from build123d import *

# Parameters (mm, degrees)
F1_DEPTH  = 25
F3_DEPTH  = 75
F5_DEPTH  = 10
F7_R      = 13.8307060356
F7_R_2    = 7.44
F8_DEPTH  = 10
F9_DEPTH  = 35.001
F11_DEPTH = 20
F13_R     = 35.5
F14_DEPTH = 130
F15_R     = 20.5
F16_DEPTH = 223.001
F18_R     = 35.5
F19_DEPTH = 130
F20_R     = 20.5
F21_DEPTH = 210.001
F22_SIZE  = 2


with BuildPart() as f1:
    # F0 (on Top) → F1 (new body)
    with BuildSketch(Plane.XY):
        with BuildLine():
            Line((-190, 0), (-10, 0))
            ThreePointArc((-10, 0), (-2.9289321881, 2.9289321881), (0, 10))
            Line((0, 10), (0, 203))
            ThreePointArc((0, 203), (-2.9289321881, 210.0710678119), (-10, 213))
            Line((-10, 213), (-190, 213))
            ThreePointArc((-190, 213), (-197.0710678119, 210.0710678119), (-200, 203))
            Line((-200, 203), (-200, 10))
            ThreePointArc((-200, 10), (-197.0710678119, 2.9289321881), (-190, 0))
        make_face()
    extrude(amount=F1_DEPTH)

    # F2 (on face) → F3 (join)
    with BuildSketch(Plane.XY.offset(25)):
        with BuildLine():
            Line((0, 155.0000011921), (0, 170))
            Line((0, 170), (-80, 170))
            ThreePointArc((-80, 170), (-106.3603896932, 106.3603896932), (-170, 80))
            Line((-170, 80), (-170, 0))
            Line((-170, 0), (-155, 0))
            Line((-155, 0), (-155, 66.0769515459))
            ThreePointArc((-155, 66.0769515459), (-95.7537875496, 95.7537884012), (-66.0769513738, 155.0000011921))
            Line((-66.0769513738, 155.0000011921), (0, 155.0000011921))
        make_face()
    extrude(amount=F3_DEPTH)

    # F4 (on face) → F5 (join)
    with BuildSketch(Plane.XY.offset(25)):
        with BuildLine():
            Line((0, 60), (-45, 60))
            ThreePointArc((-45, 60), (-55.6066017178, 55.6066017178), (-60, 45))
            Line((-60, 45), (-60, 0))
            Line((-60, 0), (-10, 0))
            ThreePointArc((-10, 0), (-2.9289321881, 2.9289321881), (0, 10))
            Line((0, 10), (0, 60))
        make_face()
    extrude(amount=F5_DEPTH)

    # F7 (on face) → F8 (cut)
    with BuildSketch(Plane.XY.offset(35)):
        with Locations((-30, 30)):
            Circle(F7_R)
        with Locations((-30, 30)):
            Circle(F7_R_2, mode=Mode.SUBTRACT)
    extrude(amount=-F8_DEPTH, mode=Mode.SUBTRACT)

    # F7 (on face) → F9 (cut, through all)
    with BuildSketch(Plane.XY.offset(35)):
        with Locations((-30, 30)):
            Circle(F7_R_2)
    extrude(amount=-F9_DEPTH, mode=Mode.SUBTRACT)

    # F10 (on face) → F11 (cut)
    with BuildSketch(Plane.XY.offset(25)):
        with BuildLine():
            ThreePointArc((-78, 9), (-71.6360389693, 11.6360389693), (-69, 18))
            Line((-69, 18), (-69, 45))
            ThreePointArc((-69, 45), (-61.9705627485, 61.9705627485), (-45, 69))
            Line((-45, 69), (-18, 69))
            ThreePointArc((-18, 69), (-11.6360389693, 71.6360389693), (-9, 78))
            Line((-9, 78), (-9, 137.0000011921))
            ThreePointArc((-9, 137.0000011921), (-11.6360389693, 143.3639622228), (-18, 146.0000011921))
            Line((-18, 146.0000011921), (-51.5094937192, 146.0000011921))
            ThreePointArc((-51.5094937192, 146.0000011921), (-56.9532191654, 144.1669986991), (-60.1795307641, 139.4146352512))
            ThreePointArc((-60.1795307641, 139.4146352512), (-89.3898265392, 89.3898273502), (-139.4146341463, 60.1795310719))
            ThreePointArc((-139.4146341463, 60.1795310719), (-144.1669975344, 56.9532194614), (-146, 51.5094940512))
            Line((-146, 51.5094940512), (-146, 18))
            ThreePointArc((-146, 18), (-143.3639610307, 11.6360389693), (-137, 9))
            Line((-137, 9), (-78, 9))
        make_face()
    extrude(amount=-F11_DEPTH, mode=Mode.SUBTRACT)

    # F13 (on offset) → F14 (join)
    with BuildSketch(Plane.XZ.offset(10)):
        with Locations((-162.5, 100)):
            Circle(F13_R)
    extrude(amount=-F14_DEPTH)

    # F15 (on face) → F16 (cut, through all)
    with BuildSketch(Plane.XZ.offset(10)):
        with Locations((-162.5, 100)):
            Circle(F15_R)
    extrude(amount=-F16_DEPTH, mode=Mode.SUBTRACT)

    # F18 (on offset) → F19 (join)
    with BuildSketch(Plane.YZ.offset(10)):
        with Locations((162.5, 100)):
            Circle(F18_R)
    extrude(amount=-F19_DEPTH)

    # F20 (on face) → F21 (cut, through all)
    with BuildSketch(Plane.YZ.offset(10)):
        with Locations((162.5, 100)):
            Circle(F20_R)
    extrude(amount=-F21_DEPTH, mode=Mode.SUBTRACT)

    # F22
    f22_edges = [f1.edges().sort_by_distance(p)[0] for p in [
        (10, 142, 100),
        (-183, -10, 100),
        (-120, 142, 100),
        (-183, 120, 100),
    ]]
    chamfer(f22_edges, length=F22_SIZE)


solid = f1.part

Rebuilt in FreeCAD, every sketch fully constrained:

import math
import FreeCAD as App
import Part
import Sketcher

V = App.Vector


def edges_at(feature, points):
    """Names of the edges that pass closest to the given points."""
    edges = feature.Shape.Edges
    near = lambda p: min(range(len(edges)), key=lambda i: edges[i].distToShape(Part.Vertex(*p))[0])
    return sorted({f"Edge{near(p) + 1}" for p in points})

doc = App.newDocument("Part")
body = doc.addObject("PartDesign::Body", "Body")

# Sketch on XY plane
sketch1 = body.newObject("Sketcher::SketchObject", "Sketch")
sketch1.AttachmentSupport = (doc.getObject("XY_Plane"), [""])
sketch1.MapMode = "FlatFace"
sketch1.addGeometry(Part.LineSegment(V(-190, 0, 0), V(-10, 0, 0)), False)
sketch1.addGeometry(Part.ArcOfCircle(Part.Circle(V(-10, 10, 0), V(0, 0, 1), 10), math.radians(-90), math.radians(0)), False)
sketch1.addGeometry(Part.LineSegment(V(0, 10, 0), V(0, 203, 0)), False)
sketch1.addGeometry(Part.ArcOfCircle(Part.Circle(V(-10, 203, 0), V(0, 0, 1), 10), math.radians(0), math.radians(90)), False)
sketch1.addGeometry(Part.LineSegment(V(-10, 213, 0), V(-190, 213, 0)), False)
sketch1.addGeometry(Part.ArcOfCircle(Part.Circle(V(-190, 203, 0), V(0, 0, 1), 10), math.radians(90), math.radians(180)), False)
sketch1.addGeometry(Part.LineSegment(V(-200, 203, 0), V(-200, 10, 0)), False)
sketch1.addGeometry(Part.ArcOfCircle(Part.Circle(V(-190, 10, 0), V(0, 0, 1), 10), math.radians(180), math.radians(270)), False)
sketch1.addConstraint(Sketcher.Constraint("Tangent", 0, 2, 1, 1))
sketch1.addConstraint(Sketcher.Constraint("Tangent", 1, 2, 2, 1))
sketch1.addConstraint(Sketcher.Constraint("Tangent", 2, 2, 3, 1))
sketch1.addConstraint(Sketcher.Constraint("Tangent", 3, 2, 4, 1))
sketch1.addConstraint(Sketcher.Constraint("Tangent", 4, 2, 5, 1))
sketch1.addConstraint(Sketcher.Constraint("Tangent", 5, 2, 6, 1))
sketch1.addConstraint(Sketcher.Constraint("Tangent", 6, 2, 7, 1))
sketch1.addConstraint(Sketcher.Constraint("Tangent", 7, 2, 0, 1))
sketch1.addConstraint(Sketcher.Constraint("Horizontal", 0))
sketch1.addConstraint(Sketcher.Constraint("Vertical", 2))
sketch1.addConstraint(Sketcher.Constraint("Horizontal", 4))
sketch1.addConstraint(Sketcher.Constraint("Vertical", 6))
sketch1.addConstraint(Sketcher.Constraint("Equal", 1, 3))
sketch1.addConstraint(Sketcher.Constraint("Equal", 3, 5))
sketch1.addConstraint(Sketcher.Constraint("Equal", 5, 7))
sketch1.addConstraint(Sketcher.Constraint("PointOnObject", 0, 2, -1))
sketch1.addConstraint(Sketcher.Constraint("PointOnObject", 1, 2, -2))
sketch1.addConstraint(Sketcher.Constraint("Radius", 1, 10.0))
sketch1.addConstraint(Sketcher.Constraint("DistanceX", 0, 1, 0, 2, 180.0))
sketch1.addConstraint(Sketcher.Constraint("DistanceY", 2, 1, 2, 2, 193.0))
pad1 = body.newObject("PartDesign::Pad", "Pad")
pad1.Profile = sketch1
pad1.Length = 25

# Sketch on XY plane
sketch2 = body.newObject("Sketcher::SketchObject", "Sketch001")
sketch2.AttachmentSupport = (doc.getObject("XY_Plane"), [""])
sketch2.MapMode = "FlatFace"
sketch2.AttachmentOffset = App.Placement(V(0, 0, 25), App.Rotation())
sketch2.addGeometry(Part.LineSegment(V(0, 155, 0), V(0, 170, 0)), False)
sketch2.addGeometry(Part.LineSegment(V(0, 170, 0), V(-80, 170, 0)), False)
sketch2.addGeometry(Part.ArcOfCircle(Part.Circle(V(-170, 170, 0), V(0, 0, 1), 90), math.radians(-90), math.radians(0)), False)
sketch2.addGeometry(Part.LineSegment(V(-170, 80, 0), V(-170, 0, 0)), False)
sketch2.addGeometry(Part.LineSegment(V(-170, 0, 0), V(-155, 0, 0)), False)
sketch2.addGeometry(Part.LineSegment(V(-155, 0, 0), V(-155, 66, 0)), False)
sketch2.addGeometry(Part.ArcOfCircle(Part.Circle(V(-170, 170, 0), V(0, 0, 1), 105), math.radians(-82), math.radians(-8)), False)
sketch2.addGeometry(Part.LineSegment(V(-66, 155, 0), V(0, 155, 0)), False)
sketch2.addConstraint(Sketcher.Constraint("Coincident", 0, 2, 1, 1))
sketch2.addConstraint(Sketcher.Constraint("Coincident", 1, 2, 2, 2))
sketch2.addConstraint(Sketcher.Constraint("Coincident", 2, 1, 3, 1))
sketch2.addConstraint(Sketcher.Constraint("Coincident", 3, 2, 4, 1))
sketch2.addConstraint(Sketcher.Constraint("Coincident", 4, 2, 5, 1))
sketch2.addConstraint(Sketcher.Constraint("Coincident", 5, 2, 6, 1))
sketch2.addConstraint(Sketcher.Constraint("Coincident", 6, 2, 7, 1))
sketch2.addConstraint(Sketcher.Constraint("Coincident", 7, 2, 0, 1))
sketch2.addConstraint(Sketcher.Constraint("Vertical", 0))
sketch2.addConstraint(Sketcher.Constraint("Horizontal", 1))
sketch2.addConstraint(Sketcher.Constraint("Vertical", 3))
sketch2.addConstraint(Sketcher.Constraint("Horizontal", 4))
sketch2.addConstraint(Sketcher.Constraint("Vertical", 5))
sketch2.addConstraint(Sketcher.Constraint("Horizontal", 7))
sketch2.addConstraint(Sketcher.Constraint("Coincident", 6, 3, 2, 3))
sketch2.addConstraint(Sketcher.Constraint("PointOnObject", 0, 2, -2))
sketch2.addConstraint(Sketcher.Constraint("PointOnObject", 3, 2, -1))
sketch2.addConstraint(Sketcher.Constraint("Horizontal", 6, 3, 0, 2))
sketch2.addConstraint(Sketcher.Constraint("Vertical", 6, 3, 2, 1))
sketch2.addConstraint(Sketcher.Constraint("Equal", 4, 0))
sketch2.addConstraint(Sketcher.Constraint("Equal", 1, 3))
sketch2.addConstraint(Sketcher.Constraint("Radius", 2, 90.0))
sketch2.addConstraint(Sketcher.Constraint("Radius", 6, 105.0))
sketch2.addConstraint(Sketcher.Constraint("DistanceX", 1, 2, 1, 1, 80.0))
sketch2.addConstraint(Sketcher.Constraint("DistanceX", 4, 1, 4, 2, 15.0))
pad2 = body.newObject("PartDesign::Pad", "Pad001")
pad2.Profile = sketch2
pad2.Length = 75

# Sketch on XY plane
sketch3 = body.newObject("Sketcher::SketchObject", "Sketch002")
sketch3.AttachmentSupport = (doc.getObject("XY_Plane"), [""])
sketch3.MapMode = "FlatFace"
sketch3.AttachmentOffset = App.Placement(V(0, 0, 25), App.Rotation())
sketch3.addGeometry(Part.LineSegment(V(0, 60, 0), V(-45, 60, 0)), False)
sketch3.addGeometry(Part.ArcOfCircle(Part.Circle(V(-45, 45, 0), V(0, 0, 1), 15), math.radians(90), math.radians(180)), False)
sketch3.addGeometry(Part.LineSegment(V(-60, 45, 0), V(-60, 0, 0)), False)
sketch3.addGeometry(Part.LineSegment(V(-60, 0, 0), V(-10, 0, 0)), False)
sketch3.addGeometry(Part.ArcOfCircle(Part.Circle(V(-10, 10, 0), V(0, 0, 1), 10), math.radians(-90), math.radians(0)), False)
sketch3.addGeometry(Part.LineSegment(V(0, 10, 0), V(0, 60, 0)), False)
sketch3.addConstraint(Sketcher.Constraint("Tangent", 0, 2, 1, 1))
sketch3.addConstraint(Sketcher.Constraint("Tangent", 1, 2, 2, 1))
sketch3.addConstraint(Sketcher.Constraint("Coincident", 2, 2, 3, 1))
sketch3.addConstraint(Sketcher.Constraint("Tangent", 3, 2, 4, 1))
sketch3.addConstraint(Sketcher.Constraint("Tangent", 4, 2, 5, 1))
sketch3.addConstraint(Sketcher.Constraint("Coincident", 5, 2, 0, 1))
sketch3.addConstraint(Sketcher.Constraint("Horizontal", 0))
sketch3.addConstraint(Sketcher.Constraint("Vertical", 2))
sketch3.addConstraint(Sketcher.Constraint("Horizontal", 3))
sketch3.addConstraint(Sketcher.Constraint("Vertical", 5))
sketch3.addConstraint(Sketcher.Constraint("PointOnObject", 2, 2, -1))
sketch3.addConstraint(Sketcher.Constraint("PointOnObject", 4, 2, -2))
sketch3.addConstraint(Sketcher.Constraint("Equal", 0, 2))
sketch3.addConstraint(Sketcher.Constraint("Radius", 1, 15.0))
sketch3.addConstraint(Sketcher.Constraint("Radius", 4, 10.0))
sketch3.addConstraint(Sketcher.Constraint("DistanceX", 0, 2, 0, 1, 45.0))
pad3 = body.newObject("PartDesign::Pad", "Pad002")
pad3.Profile = sketch3
pad3.Length = 10

# Sketch on XY plane
sketch4 = body.newObject("Sketcher::SketchObject", "Sketch003")
sketch4.AttachmentSupport = (doc.getObject("XY_Plane"), [""])
sketch4.MapMode = "FlatFace"
sketch4.AttachmentOffset = App.Placement(V(0, 0, 35), App.Rotation())
sketch4.addGeometry(Part.Circle(V(-30, 30, 0), V(0, 0, 1), 14), False)
sketch4.addGeometry(Part.Circle(V(-30, 30, 0), V(0, 0, 1), 7), False)
sketch4.addConstraint(Sketcher.Constraint("Coincident", 1, 3, 0, 3))
sketch4.addConstraint(Sketcher.Constraint("Diameter", 1, 14.88))
sketch4.addConstraint(Sketcher.Constraint("DistanceX", 0, 3, -1, 1, 30.0))
sketch4.addConstraint(Sketcher.Constraint("DistanceY", -1, 1, 0, 3, 30.0))
sketch4.addConstraint(Sketcher.Constraint("Diameter", 0, 27.661412))
pocket1 = body.newObject("PartDesign::Pocket", "Pocket")
pocket1.Profile = sketch4
pocket1.Length = 10

# Sketch on XY plane
sketch5 = body.newObject("Sketcher::SketchObject", "Sketch004")
sketch5.AttachmentSupport = (doc.getObject("XY_Plane"), [""])
sketch5.MapMode = "FlatFace"
sketch5.AttachmentOffset = App.Placement(V(0, 0, 35), App.Rotation())
sketch5.addGeometry(Part.Circle(V(-30, 30, 0), V(0, 0, 1), 7), False)
sketch5.addConstraint(Sketcher.Constraint("Diameter", 0, 14.88))
sketch5.addConstraint(Sketcher.Constraint("DistanceX", 0, 3, -1, 1, 30.0))
sketch5.addConstraint(Sketcher.Constraint("DistanceY", -1, 1, 0, 3, 30.0))
pocket2 = body.newObject("PartDesign::Pocket", "Pocket001")
pocket2.Profile = sketch5
pocket2.Type = "ThroughAll"

# Sketch on XY plane
sketch6 = body.newObject("Sketcher::SketchObject", "Sketch005")
sketch6.AttachmentSupport = (doc.getObject("XY_Plane"), [""])
sketch6.MapMode = "FlatFace"
sketch6.AttachmentOffset = App.Placement(V(0, 0, 25), App.Rotation())
sketch6.addGeometry(Part.ArcOfCircle(Part.Circle(V(-78, 18, 0), V(0, 0, 1), 9), math.radians(-90), math.radians(0)), False)
sketch6.addGeometry(Part.LineSegment(V(-69, 18, 0), V(-69, 45, 0)), False)
sketch6.addGeometry(Part.ArcOfCircle(Part.Circle(V(-45, 45, 0), V(0, 0, 1), 24), math.radians(90), math.radians(180)), False)
sketch6.addGeometry(Part.LineSegment(V(-45, 69, 0), V(-18, 69, 0)), False)
sketch6.addGeometry(Part.ArcOfCircle(Part.Circle(V(-18, 78, 0), V(0, 0, 1), 9), math.radians(-90), math.radians(0)), False)
sketch6.addGeometry(Part.LineSegment(V(-9, 78, 0), V(-9, 137, 0)), False)
sketch6.addGeometry(Part.ArcOfCircle(Part.Circle(V(-18, 137, 0), V(0, 0, 1), 9), math.radians(0), math.radians(90)), False)
sketch6.addGeometry(Part.LineSegment(V(-18, 146, 0), V(-52, 146, 0)), False)
sketch6.addGeometry(Part.ArcOfCircle(Part.Circle(V(-52, 137, 0), V(0, 0, 1), 9), math.radians(90), math.radians(164)), False)
sketch6.addGeometry(Part.ArcOfCircle(Part.Circle(V(-170, 170, 0), V(0, 0, 1), 114), math.radians(-74), math.radians(-16)), False)
sketch6.addGeometry(Part.ArcOfCircle(Part.Circle(V(-137, 52, 0), V(0, 0, 1), 9), math.radians(106), math.radians(180)), False)
sketch6.addGeometry(Part.LineSegment(V(-146, 52, 0), V(-146, 18, 0)), False)
sketch6.addGeometry(Part.ArcOfCircle(Part.Circle(V(-137, 18, 0), V(0, 0, 1), 9), math.radians(180), math.radians(270)), False)
sketch6.addGeometry(Part.LineSegment(V(-137, 9, 0), V(-78, 9, 0)), False)
sketch6.addConstraint(Sketcher.Constraint("Tangent", 0, 2, 1, 1))
sketch6.addConstraint(Sketcher.Constraint("Tangent", 1, 2, 2, 2))
sketch6.addConstraint(Sketcher.Constraint("Tangent", 2, 1, 3, 1))
sketch6.addConstraint(Sketcher.Constraint("Tangent", 3, 2, 4, 1))
sketch6.addConstraint(Sketcher.Constraint("Tangent", 4, 2, 5, 1))
sketch6.addConstraint(Sketcher.Constraint("Tangent", 5, 2, 6, 1))
sketch6.addConstraint(Sketcher.Constraint("Tangent", 6, 2, 7, 1))
sketch6.addConstraint(Sketcher.Constraint("Tangent", 7, 2, 8, 1))
sketch6.addConstraint(Sketcher.Constraint("Tangent", 8, 2, 9, 2))
sketch6.addConstraint(Sketcher.Constraint("Tangent", 9, 1, 10, 1))
sketch6.addConstraint(Sketcher.Constraint("Tangent", 10, 2, 11, 1))
sketch6.addConstraint(Sketcher.Constraint("Tangent", 11, 2, 12, 1))
sketch6.addConstraint(Sketcher.Constraint("Tangent", 12, 2, 13, 1))
sketch6.addConstraint(Sketcher.Constraint("Tangent", 13, 2, 0, 1))
sketch6.addConstraint(Sketcher.Constraint("Vertical", 1))
sketch6.addConstraint(Sketcher.Constraint("Horizontal", 3))
sketch6.addConstraint(Sketcher.Constraint("Vertical", 5))
sketch6.addConstraint(Sketcher.Constraint("Horizontal", 7))
sketch6.addConstraint(Sketcher.Constraint("Vertical", 11))
sketch6.addConstraint(Sketcher.Constraint("Horizontal", 13))
sketch6.addConstraint(Sketcher.Constraint("Equal", 0, 4))
sketch6.addConstraint(Sketcher.Constraint("Equal", 4, 6))
sketch6.addConstraint(Sketcher.Constraint("Equal", 6, 8))
sketch6.addConstraint(Sketcher.Constraint("Equal", 8, 10))
sketch6.addConstraint(Sketcher.Constraint("Equal", 10, 12))
sketch6.addConstraint(Sketcher.Constraint("Equal", 3, 1))
sketch6.addConstraint(Sketcher.Constraint("Equal", 13, 5))
sketch6.addConstraint(Sketcher.Constraint("Equal", 7, 11))
sketch6.addConstraint(Sketcher.Constraint("Radius", 0, 9.0))
sketch6.addConstraint(Sketcher.Constraint("Radius", 2, 24.0))
sketch6.addConstraint(Sketcher.Constraint("Radius", 9, 114.0))
sketch6.addConstraint(Sketcher.Constraint("DistanceX", 3, 1, 3, 2, 27.0))
sketch6.addConstraint(Sketcher.Constraint("DistanceX", 13, 1, 13, 2, 59.0))
sketch6.addConstraint(Sketcher.Constraint("DistanceX", 0, 3, -1, 1, 78.0))
sketch6.addConstraint(Sketcher.Constraint("DistanceY", -1, 1, 0, 3, 18.0))
sketch6.addConstraint(Sketcher.Constraint("DistanceX", 9, 3, -1, 1, 170.0))
pocket3 = body.newObject("PartDesign::Pocket", "Pocket002")
pocket3.Profile = sketch6
pocket3.Length = 20

# Sketch on XZ plane
sketch7 = body.newObject("Sketcher::SketchObject", "Sketch006")
sketch7.AttachmentSupport = (doc.getObject("XZ_Plane"), [""])
sketch7.MapMode = "FlatFace"
sketch7.AttachmentOffset = App.Placement(V(0, 0, 10), App.Rotation())
sketch7.addGeometry(Part.Circle(V(-162, 100, 0), V(0, 0, 1), 36), False)
sketch7.addConstraint(Sketcher.Constraint("Diameter", 0, 71.0))
sketch7.addConstraint(Sketcher.Constraint("DistanceY", -1, 1, 0, 3, 100.0))
sketch7.addConstraint(Sketcher.Constraint("DistanceX", 0, 3, -1, 1, 162.5))
pad4 = body.newObject("PartDesign::Pad", "Pad003")
pad4.Profile = sketch7
pad4.Length = 130
pad4.Reversed = True

# Sketch on XZ plane
sketch8 = body.newObject("Sketcher::SketchObject", "Sketch007")
sketch8.AttachmentSupport = (doc.getObject("XZ_Plane"), [""])
sketch8.MapMode = "FlatFace"
sketch8.AttachmentOffset = App.Placement(V(0, 0, 10), App.Rotation())
sketch8.addGeometry(Part.Circle(V(-162, 100, 0), V(0, 0, 1), 20), False)
sketch8.addConstraint(Sketcher.Constraint("Diameter", 0, 41.0))
sketch8.addConstraint(Sketcher.Constraint("DistanceY", -1, 1, 0, 3, 100.0))
sketch8.addConstraint(Sketcher.Constraint("DistanceX", 0, 3, -1, 1, 162.5))
pocket4 = body.newObject("PartDesign::Pocket", "Pocket003")
pocket4.Profile = sketch8
pocket4.Type = "ThroughAll"

# Sketch on YZ plane
sketch9 = body.newObject("Sketcher::SketchObject", "Sketch008")
sketch9.AttachmentSupport = (doc.getObject("YZ_Plane"), [""])
sketch9.MapMode = "FlatFace"
sketch9.AttachmentOffset = App.Placement(V(0, 0, 10), App.Rotation())
sketch9.addGeometry(Part.Circle(V(162, 100, 0), V(0, 0, 1), 36), False)
sketch9.addConstraint(Sketcher.Constraint("Diameter", 0, 71.0))
sketch9.addConstraint(Sketcher.Constraint("DistanceY", -1, 1, 0, 3, 100.0))
sketch9.addConstraint(Sketcher.Constraint("DistanceX", -1, 1, 0, 3, 162.5))
pad5 = body.newObject("PartDesign::Pad", "Pad004")
pad5.Profile = sketch9
pad5.Length = 130
pad5.Reversed = True

# Sketch on YZ plane
sketch10 = body.newObject("Sketcher::SketchObject", "Sketch009")
sketch10.AttachmentSupport = (doc.getObject("YZ_Plane"), [""])
sketch10.MapMode = "FlatFace"
sketch10.AttachmentOffset = App.Placement(V(0, 0, 10), App.Rotation())
sketch10.addGeometry(Part.Circle(V(162, 100, 0), V(0, 0, 1), 20), False)
sketch10.addConstraint(Sketcher.Constraint("Diameter", 0, 41.0))
sketch10.addConstraint(Sketcher.Constraint("DistanceY", -1, 1, 0, 3, 100.0))
sketch10.addConstraint(Sketcher.Constraint("DistanceX", -1, 1, 0, 3, 162.5))
pocket5 = body.newObject("PartDesign::Pocket", "Pocket004")
pocket5.Profile = sketch10
pocket5.Type = "ThroughAll"
doc.recompute()

chamfer = body.newObject("PartDesign::Chamfer", "Chamfer")
chamfer.Base = (pocket5, edges_at(pocket5, [
    (10, 142, 100),
    (-183, -10, 100),
    (-120, 142, 100),
    (-183, 120, 100),
]))
chamfer.Size = 2

doc.recompute()
